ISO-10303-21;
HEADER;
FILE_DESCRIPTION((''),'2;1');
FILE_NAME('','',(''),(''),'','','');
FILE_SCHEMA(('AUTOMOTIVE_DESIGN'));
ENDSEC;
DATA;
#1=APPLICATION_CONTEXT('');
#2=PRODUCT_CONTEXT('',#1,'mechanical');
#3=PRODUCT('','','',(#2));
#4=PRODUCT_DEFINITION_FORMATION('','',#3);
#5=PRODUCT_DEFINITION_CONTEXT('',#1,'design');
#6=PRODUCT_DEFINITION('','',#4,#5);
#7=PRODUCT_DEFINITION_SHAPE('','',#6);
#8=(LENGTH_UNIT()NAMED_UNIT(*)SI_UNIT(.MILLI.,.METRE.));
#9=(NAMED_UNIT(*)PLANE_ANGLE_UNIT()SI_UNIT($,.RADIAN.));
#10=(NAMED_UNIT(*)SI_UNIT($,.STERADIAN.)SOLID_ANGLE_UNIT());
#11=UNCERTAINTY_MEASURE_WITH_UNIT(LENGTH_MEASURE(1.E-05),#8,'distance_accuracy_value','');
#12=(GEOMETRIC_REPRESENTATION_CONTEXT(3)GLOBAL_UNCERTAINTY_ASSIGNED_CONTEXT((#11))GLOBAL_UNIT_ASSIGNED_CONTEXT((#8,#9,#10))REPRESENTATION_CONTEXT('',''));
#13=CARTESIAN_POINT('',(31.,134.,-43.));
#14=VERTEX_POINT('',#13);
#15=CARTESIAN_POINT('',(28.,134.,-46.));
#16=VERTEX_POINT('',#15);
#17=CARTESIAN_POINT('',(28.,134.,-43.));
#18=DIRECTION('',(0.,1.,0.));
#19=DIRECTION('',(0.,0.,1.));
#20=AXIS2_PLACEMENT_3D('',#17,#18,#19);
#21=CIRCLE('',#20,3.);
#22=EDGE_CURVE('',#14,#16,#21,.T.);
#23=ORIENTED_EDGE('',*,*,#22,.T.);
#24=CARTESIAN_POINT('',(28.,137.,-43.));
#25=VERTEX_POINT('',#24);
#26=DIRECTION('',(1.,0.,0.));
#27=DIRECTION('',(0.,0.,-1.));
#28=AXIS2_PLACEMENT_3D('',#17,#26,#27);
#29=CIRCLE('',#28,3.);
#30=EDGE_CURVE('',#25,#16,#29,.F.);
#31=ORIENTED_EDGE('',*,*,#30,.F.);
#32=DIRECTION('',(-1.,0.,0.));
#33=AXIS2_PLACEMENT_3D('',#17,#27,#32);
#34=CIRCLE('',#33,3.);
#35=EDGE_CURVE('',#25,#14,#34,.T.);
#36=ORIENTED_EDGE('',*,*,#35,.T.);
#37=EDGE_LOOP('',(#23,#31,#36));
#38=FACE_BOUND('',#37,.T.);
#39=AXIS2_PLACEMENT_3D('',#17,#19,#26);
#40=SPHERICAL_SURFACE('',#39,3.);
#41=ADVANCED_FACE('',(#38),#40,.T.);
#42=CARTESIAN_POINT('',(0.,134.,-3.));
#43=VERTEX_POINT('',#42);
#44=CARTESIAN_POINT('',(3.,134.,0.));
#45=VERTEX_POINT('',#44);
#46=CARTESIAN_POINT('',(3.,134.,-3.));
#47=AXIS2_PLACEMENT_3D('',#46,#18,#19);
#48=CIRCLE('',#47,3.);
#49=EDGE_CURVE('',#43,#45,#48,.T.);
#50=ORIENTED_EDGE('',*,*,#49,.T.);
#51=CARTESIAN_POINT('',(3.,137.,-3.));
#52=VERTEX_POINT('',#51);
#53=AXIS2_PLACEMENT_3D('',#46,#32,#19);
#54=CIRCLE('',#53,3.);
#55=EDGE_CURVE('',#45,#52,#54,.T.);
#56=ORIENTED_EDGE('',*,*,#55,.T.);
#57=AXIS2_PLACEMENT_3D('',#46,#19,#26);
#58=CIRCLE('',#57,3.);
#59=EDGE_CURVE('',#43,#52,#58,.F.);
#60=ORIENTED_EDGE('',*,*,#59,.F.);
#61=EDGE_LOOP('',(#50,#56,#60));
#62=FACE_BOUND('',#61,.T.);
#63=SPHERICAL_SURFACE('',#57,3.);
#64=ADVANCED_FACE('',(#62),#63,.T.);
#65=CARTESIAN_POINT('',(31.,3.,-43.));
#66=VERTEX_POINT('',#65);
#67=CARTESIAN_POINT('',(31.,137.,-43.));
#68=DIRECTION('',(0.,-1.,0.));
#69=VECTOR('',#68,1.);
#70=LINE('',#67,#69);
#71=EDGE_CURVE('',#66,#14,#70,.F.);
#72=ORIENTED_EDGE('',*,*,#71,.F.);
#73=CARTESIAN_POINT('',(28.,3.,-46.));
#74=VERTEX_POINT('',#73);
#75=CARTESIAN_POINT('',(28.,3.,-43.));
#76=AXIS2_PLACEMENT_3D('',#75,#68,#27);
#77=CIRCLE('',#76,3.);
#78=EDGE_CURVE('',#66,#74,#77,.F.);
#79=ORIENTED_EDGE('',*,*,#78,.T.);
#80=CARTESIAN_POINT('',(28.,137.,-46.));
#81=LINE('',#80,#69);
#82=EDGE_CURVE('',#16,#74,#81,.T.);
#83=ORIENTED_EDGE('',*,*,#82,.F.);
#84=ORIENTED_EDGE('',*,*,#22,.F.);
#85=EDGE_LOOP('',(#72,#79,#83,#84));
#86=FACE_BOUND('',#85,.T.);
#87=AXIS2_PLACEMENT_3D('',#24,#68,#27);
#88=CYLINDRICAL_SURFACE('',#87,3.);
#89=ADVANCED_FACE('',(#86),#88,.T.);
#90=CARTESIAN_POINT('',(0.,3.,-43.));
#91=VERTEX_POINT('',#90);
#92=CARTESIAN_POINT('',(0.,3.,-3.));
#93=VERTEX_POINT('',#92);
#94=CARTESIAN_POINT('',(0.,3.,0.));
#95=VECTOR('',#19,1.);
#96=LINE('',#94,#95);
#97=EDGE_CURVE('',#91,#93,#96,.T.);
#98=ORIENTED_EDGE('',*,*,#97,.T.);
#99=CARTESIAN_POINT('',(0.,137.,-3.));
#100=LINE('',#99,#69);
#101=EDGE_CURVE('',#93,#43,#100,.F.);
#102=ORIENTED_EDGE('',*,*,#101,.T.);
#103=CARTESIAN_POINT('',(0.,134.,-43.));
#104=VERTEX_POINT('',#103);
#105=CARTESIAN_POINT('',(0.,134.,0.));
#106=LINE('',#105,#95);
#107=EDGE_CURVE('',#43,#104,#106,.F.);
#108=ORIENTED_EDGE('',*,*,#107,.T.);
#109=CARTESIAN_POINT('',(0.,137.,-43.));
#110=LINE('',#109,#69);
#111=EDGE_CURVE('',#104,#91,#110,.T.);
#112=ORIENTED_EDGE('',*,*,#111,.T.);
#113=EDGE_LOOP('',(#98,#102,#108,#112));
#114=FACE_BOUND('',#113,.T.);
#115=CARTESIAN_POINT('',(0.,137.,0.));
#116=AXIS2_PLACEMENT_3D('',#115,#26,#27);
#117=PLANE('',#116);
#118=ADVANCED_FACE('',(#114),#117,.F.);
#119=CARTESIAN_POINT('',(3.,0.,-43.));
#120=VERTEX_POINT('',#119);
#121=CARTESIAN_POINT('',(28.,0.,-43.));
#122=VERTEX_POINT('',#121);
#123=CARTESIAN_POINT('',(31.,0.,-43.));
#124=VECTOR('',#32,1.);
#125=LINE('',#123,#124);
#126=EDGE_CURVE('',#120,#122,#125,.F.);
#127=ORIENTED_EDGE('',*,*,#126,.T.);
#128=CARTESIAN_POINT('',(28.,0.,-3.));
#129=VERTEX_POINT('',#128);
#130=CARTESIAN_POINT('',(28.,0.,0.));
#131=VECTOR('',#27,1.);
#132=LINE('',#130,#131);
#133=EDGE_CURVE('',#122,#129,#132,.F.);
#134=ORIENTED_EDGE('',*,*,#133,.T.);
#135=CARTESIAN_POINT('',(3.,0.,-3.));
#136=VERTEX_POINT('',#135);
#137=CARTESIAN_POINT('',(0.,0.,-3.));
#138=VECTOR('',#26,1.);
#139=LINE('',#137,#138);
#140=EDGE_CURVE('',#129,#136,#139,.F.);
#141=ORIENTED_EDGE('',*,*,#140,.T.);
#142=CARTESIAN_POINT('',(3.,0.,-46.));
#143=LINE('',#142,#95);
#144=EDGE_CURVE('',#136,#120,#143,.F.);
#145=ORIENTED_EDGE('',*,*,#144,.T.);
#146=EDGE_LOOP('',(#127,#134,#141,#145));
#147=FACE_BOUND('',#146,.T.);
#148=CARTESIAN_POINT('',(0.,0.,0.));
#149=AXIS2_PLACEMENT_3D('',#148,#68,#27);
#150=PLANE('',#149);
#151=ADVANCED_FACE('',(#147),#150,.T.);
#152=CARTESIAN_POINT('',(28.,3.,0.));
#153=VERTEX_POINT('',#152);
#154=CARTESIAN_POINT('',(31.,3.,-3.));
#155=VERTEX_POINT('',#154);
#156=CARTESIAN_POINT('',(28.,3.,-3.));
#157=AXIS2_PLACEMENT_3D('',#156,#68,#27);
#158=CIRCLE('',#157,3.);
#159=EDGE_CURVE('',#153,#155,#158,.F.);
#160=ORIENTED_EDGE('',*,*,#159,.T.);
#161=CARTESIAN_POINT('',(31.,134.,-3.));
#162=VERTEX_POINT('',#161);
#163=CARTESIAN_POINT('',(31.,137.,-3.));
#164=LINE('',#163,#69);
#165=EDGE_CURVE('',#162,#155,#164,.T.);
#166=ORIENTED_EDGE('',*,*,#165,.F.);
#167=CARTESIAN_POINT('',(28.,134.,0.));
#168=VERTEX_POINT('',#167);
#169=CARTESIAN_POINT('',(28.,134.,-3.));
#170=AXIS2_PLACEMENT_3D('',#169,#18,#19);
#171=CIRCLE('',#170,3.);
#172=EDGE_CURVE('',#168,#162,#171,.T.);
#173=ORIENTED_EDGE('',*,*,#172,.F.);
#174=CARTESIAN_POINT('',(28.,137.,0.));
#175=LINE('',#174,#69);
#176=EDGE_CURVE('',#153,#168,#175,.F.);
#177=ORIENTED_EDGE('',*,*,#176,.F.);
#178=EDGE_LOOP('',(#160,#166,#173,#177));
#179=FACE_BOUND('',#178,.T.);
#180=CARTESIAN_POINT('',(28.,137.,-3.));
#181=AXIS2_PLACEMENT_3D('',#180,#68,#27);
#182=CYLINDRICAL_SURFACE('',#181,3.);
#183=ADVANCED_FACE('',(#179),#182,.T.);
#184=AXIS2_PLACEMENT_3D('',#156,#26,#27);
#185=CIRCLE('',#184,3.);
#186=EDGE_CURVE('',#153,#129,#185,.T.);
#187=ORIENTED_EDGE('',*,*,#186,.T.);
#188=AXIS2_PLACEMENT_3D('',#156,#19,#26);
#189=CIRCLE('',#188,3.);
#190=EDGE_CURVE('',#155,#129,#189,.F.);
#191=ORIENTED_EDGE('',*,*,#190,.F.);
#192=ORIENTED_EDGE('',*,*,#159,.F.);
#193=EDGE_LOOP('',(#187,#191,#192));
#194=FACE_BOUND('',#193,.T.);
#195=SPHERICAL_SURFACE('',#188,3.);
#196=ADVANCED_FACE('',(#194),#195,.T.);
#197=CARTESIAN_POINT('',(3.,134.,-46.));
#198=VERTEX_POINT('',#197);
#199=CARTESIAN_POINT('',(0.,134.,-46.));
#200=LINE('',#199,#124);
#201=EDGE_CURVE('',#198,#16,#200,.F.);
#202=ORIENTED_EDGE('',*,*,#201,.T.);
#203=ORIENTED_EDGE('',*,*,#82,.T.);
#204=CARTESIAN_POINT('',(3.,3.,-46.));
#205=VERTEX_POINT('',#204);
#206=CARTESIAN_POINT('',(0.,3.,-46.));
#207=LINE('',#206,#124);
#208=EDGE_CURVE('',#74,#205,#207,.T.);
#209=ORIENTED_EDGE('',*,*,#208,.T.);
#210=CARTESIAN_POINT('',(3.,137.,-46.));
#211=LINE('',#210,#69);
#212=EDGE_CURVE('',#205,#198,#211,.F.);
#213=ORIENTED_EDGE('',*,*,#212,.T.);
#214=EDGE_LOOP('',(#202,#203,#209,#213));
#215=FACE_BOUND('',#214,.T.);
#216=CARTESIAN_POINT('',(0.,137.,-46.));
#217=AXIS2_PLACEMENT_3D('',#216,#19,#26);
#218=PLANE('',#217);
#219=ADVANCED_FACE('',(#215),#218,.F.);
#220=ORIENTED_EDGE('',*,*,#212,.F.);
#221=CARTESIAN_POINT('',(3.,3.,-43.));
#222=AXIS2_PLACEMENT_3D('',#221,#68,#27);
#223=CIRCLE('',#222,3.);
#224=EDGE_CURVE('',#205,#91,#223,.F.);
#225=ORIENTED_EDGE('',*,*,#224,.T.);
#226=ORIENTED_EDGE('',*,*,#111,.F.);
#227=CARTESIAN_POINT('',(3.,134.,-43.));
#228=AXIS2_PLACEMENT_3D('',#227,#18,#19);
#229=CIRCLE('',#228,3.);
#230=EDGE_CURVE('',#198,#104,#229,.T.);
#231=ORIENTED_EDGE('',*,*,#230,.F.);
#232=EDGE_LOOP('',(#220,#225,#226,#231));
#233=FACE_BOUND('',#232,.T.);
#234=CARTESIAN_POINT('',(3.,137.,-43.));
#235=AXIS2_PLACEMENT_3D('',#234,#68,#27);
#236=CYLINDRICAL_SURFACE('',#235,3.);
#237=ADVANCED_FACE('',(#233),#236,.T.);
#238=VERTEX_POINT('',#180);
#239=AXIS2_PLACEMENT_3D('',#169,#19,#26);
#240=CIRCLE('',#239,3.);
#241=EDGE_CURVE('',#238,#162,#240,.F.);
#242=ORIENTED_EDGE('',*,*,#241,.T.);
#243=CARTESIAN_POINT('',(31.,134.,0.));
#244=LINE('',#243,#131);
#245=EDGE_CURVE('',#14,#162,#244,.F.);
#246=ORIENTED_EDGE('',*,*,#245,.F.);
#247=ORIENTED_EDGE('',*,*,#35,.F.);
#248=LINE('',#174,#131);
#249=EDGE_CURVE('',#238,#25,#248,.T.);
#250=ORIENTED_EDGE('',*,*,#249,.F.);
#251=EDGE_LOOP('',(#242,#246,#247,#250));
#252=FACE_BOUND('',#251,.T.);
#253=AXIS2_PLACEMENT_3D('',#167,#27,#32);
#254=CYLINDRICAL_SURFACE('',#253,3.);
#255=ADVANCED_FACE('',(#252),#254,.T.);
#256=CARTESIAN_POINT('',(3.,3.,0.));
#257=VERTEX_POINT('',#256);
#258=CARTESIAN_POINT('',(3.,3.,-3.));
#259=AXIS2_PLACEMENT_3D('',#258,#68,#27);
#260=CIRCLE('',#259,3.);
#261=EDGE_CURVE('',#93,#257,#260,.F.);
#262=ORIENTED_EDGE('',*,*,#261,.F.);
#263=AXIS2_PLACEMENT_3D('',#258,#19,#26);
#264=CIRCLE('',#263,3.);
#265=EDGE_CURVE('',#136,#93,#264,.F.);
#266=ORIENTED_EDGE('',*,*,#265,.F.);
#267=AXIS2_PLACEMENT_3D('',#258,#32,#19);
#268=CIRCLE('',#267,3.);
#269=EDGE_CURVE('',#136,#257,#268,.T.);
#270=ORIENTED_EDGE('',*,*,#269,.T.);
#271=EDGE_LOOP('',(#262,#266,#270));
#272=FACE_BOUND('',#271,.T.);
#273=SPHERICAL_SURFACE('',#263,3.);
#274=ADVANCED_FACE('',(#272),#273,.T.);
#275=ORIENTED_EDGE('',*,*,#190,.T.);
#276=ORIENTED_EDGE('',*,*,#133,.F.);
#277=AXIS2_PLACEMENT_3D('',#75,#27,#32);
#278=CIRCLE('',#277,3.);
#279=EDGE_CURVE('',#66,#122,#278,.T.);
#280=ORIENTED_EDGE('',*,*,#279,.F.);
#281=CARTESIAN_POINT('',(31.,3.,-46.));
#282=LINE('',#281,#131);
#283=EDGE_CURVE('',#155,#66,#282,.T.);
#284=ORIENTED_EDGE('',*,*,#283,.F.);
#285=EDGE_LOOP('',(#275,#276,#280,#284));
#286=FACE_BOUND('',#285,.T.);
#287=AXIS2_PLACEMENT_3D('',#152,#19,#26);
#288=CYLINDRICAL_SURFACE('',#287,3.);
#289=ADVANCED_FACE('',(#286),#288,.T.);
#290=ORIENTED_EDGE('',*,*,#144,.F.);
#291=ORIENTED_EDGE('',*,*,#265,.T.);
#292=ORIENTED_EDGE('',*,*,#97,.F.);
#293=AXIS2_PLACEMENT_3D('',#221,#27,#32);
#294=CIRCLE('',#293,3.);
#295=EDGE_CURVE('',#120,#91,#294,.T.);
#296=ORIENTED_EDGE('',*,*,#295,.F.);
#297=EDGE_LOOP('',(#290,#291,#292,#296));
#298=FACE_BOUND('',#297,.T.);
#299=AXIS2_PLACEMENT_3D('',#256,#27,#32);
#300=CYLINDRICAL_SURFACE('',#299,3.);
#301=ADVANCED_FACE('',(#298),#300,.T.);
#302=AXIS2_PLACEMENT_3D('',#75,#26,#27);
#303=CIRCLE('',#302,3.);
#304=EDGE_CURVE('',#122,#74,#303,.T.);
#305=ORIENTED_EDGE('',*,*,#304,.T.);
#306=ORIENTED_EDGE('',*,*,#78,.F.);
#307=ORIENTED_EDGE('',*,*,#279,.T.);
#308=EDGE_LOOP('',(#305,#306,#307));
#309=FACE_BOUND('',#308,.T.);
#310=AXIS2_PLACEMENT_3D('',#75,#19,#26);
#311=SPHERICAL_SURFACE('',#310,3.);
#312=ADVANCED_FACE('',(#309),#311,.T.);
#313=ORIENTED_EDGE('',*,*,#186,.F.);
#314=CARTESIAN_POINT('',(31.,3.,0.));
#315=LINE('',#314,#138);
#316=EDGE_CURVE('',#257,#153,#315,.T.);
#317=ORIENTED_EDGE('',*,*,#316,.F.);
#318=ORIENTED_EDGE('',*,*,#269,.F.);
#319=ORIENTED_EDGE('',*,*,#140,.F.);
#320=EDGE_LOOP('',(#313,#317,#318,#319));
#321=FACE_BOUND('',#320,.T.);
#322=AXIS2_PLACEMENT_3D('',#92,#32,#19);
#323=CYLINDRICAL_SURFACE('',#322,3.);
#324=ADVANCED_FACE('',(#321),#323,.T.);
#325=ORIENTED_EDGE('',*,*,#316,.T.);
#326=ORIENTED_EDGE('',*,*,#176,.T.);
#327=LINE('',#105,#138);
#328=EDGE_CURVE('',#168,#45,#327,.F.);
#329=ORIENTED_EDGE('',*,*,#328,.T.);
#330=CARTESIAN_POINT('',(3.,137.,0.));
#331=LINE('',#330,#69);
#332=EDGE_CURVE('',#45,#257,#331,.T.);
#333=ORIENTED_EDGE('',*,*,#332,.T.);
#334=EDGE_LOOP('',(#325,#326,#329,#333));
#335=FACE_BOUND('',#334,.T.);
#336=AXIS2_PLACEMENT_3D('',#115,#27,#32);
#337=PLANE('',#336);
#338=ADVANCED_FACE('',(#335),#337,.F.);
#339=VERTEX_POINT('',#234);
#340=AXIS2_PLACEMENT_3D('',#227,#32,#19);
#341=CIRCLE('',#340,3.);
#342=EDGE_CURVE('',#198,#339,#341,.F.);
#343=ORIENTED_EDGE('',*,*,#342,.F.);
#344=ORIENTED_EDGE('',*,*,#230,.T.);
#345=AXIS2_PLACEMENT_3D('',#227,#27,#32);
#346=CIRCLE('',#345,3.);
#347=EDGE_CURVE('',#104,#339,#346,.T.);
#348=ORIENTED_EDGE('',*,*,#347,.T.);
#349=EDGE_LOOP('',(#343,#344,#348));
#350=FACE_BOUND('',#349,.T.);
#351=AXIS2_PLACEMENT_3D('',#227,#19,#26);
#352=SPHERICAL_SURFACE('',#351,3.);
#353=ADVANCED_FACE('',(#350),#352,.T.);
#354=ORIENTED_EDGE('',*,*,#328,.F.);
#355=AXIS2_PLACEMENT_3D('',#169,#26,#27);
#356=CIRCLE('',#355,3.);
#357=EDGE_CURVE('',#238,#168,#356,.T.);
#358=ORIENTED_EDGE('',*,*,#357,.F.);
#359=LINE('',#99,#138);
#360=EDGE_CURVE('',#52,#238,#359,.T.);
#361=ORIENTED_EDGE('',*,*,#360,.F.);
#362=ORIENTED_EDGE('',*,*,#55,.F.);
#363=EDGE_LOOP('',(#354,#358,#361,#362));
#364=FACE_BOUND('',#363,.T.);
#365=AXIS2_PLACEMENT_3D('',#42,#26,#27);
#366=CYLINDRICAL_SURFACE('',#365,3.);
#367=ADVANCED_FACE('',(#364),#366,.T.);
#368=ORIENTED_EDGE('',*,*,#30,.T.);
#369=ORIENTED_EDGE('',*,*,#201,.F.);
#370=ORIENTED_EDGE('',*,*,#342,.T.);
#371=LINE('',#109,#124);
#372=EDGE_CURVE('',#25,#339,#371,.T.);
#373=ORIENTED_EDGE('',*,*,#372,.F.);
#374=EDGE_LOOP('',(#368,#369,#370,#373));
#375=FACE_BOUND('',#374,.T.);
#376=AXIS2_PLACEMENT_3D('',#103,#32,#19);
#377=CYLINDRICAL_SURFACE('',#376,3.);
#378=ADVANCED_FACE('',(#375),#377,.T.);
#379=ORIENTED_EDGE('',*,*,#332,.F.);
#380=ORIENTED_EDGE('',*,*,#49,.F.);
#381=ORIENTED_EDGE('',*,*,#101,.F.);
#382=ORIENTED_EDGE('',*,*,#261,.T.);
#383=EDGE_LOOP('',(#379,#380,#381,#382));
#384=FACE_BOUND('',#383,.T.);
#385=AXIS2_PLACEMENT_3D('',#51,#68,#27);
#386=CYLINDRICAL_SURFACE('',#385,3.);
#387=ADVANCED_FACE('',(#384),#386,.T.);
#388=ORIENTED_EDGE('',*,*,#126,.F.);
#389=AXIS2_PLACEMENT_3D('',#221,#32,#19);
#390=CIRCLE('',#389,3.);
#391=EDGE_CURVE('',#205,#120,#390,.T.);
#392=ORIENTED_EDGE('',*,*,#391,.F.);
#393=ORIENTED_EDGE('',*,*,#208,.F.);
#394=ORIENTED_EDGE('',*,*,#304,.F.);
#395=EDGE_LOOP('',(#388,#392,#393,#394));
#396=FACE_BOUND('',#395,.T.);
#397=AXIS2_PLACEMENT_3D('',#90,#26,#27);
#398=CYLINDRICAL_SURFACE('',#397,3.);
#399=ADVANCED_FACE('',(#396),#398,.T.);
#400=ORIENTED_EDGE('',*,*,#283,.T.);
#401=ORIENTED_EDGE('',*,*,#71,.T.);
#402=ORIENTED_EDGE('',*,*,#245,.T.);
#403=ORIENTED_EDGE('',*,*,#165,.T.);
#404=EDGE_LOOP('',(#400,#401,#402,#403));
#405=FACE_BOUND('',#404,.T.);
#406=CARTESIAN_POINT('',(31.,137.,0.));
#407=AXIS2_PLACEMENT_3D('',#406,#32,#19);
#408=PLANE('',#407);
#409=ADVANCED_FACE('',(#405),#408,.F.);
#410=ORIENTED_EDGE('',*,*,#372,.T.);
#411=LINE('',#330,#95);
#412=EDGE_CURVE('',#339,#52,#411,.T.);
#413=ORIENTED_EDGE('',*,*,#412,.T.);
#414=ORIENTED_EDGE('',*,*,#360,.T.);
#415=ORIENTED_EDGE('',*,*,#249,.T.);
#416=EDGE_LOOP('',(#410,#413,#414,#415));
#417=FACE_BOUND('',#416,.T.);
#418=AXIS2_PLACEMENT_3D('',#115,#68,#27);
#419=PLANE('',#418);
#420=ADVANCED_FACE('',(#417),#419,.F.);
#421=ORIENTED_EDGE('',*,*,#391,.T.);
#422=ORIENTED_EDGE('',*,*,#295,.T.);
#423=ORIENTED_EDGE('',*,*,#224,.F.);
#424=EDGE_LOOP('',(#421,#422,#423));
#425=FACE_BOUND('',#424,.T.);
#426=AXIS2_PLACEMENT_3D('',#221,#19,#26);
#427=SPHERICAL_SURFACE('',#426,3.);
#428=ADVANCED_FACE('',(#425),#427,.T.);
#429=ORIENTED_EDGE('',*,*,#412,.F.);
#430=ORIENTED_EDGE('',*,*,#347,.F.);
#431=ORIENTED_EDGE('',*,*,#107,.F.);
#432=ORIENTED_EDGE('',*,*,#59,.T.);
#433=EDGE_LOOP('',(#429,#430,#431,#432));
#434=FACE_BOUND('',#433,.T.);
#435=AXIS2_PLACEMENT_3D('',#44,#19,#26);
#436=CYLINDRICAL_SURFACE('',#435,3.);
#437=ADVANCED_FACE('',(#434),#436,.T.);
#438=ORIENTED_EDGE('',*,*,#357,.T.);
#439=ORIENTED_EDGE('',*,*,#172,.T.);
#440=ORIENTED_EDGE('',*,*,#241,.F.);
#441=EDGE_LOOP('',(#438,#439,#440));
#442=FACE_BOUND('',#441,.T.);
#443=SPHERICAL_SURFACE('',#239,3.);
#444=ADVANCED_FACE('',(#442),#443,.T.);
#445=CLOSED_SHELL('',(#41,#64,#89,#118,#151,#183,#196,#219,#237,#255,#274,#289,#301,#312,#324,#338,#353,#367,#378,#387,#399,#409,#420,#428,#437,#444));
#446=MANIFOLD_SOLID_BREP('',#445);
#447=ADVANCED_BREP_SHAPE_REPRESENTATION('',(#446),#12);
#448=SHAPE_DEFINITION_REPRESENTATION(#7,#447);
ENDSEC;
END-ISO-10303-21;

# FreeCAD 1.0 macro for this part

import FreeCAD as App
import Part
import Sketcher

V = App.Vector
Q = App.Units.Quantity


def add_polygon(sketch, points):
    """Adds a closed chain of lines whose ends are joined by coincident constraints."""
    first, n = sketch.GeometryCount, len(points)
    for a, b in zip(points, points[1:] + points[:1]):
        sketch.addGeometry(Part.LineSegment(App.Vector(*a, 0), App.Vector(*b, 0)), False)
    for i in range(n):
        sketch.addConstraint(Sketcher.Constraint("Coincident", first + i, 2, first + (i + 1) % n, 1))

doc = App.newDocument("Part")
params = doc.addObject("Spreadsheet::Sheet", "Params")
for row, (alias, value) in enumerate([
    ("sketch1_width", "31 mm"),
    ("sketch1_height", "46 mm"),
    ("pad1_length", "137 mm"),
    ("fillet_radius", "3 mm"),
], start=1):
    params.set(f"A{row}", alias)
    params.set(f"B{row}", "=" + value)
    params.setAlias(f"B{row}", alias)

body = doc.addObject("PartDesign::Body", "Body")

# Sketch on XZ plane
sketch1 = body.newObject("Sketcher::SketchObject", "Sketch")
sketch1.AttachmentSupport = (doc.getObject("XZ_Plane"), [""])
sketch1.MapMode = "FlatFace"
add_polygon(sketch1, [(0, -46), (0, 0), (31, 0), (31, -46)])  # lines 0-3
sketch1.addConstraint([
    Sketcher.Constraint("Vertical", 0),
    Sketcher.Constraint("Horizontal", 1),
    Sketcher.Constraint("Vertical", 2),
    Sketcher.Constraint("Horizontal", 3),
    Sketcher.Constraint("Coincident", 0, 2, -1, 1),
    Sketcher.Constraint("DistanceX", 1, 1, 1, 2, Q("31 mm")),
    Sketcher.Constraint("DistanceY", 0, 1, 0, 2, Q("46 mm")),
])
sketch1.setExpression("Constraints[9]", "Params.sketch1_width")
sketch1.setExpression("Constraints[10]", "Params.sketch1_height")
pad1 = body.newObject("PartDesign::Pad", "Pad")
pad1.Profile = sketch1
pad1.setExpression("Length", "Params.pad1_length")
pad1.Reversed = True
doc.recompute()

fillet = body.newObject("PartDesign::Fillet", "Fillet")
fillet.Base = (pad1, ["Edge1"])
fillet.UseAllEdges = True
fillet.setExpression("Radius", "Params.fillet_radius")

doc.recompute()
